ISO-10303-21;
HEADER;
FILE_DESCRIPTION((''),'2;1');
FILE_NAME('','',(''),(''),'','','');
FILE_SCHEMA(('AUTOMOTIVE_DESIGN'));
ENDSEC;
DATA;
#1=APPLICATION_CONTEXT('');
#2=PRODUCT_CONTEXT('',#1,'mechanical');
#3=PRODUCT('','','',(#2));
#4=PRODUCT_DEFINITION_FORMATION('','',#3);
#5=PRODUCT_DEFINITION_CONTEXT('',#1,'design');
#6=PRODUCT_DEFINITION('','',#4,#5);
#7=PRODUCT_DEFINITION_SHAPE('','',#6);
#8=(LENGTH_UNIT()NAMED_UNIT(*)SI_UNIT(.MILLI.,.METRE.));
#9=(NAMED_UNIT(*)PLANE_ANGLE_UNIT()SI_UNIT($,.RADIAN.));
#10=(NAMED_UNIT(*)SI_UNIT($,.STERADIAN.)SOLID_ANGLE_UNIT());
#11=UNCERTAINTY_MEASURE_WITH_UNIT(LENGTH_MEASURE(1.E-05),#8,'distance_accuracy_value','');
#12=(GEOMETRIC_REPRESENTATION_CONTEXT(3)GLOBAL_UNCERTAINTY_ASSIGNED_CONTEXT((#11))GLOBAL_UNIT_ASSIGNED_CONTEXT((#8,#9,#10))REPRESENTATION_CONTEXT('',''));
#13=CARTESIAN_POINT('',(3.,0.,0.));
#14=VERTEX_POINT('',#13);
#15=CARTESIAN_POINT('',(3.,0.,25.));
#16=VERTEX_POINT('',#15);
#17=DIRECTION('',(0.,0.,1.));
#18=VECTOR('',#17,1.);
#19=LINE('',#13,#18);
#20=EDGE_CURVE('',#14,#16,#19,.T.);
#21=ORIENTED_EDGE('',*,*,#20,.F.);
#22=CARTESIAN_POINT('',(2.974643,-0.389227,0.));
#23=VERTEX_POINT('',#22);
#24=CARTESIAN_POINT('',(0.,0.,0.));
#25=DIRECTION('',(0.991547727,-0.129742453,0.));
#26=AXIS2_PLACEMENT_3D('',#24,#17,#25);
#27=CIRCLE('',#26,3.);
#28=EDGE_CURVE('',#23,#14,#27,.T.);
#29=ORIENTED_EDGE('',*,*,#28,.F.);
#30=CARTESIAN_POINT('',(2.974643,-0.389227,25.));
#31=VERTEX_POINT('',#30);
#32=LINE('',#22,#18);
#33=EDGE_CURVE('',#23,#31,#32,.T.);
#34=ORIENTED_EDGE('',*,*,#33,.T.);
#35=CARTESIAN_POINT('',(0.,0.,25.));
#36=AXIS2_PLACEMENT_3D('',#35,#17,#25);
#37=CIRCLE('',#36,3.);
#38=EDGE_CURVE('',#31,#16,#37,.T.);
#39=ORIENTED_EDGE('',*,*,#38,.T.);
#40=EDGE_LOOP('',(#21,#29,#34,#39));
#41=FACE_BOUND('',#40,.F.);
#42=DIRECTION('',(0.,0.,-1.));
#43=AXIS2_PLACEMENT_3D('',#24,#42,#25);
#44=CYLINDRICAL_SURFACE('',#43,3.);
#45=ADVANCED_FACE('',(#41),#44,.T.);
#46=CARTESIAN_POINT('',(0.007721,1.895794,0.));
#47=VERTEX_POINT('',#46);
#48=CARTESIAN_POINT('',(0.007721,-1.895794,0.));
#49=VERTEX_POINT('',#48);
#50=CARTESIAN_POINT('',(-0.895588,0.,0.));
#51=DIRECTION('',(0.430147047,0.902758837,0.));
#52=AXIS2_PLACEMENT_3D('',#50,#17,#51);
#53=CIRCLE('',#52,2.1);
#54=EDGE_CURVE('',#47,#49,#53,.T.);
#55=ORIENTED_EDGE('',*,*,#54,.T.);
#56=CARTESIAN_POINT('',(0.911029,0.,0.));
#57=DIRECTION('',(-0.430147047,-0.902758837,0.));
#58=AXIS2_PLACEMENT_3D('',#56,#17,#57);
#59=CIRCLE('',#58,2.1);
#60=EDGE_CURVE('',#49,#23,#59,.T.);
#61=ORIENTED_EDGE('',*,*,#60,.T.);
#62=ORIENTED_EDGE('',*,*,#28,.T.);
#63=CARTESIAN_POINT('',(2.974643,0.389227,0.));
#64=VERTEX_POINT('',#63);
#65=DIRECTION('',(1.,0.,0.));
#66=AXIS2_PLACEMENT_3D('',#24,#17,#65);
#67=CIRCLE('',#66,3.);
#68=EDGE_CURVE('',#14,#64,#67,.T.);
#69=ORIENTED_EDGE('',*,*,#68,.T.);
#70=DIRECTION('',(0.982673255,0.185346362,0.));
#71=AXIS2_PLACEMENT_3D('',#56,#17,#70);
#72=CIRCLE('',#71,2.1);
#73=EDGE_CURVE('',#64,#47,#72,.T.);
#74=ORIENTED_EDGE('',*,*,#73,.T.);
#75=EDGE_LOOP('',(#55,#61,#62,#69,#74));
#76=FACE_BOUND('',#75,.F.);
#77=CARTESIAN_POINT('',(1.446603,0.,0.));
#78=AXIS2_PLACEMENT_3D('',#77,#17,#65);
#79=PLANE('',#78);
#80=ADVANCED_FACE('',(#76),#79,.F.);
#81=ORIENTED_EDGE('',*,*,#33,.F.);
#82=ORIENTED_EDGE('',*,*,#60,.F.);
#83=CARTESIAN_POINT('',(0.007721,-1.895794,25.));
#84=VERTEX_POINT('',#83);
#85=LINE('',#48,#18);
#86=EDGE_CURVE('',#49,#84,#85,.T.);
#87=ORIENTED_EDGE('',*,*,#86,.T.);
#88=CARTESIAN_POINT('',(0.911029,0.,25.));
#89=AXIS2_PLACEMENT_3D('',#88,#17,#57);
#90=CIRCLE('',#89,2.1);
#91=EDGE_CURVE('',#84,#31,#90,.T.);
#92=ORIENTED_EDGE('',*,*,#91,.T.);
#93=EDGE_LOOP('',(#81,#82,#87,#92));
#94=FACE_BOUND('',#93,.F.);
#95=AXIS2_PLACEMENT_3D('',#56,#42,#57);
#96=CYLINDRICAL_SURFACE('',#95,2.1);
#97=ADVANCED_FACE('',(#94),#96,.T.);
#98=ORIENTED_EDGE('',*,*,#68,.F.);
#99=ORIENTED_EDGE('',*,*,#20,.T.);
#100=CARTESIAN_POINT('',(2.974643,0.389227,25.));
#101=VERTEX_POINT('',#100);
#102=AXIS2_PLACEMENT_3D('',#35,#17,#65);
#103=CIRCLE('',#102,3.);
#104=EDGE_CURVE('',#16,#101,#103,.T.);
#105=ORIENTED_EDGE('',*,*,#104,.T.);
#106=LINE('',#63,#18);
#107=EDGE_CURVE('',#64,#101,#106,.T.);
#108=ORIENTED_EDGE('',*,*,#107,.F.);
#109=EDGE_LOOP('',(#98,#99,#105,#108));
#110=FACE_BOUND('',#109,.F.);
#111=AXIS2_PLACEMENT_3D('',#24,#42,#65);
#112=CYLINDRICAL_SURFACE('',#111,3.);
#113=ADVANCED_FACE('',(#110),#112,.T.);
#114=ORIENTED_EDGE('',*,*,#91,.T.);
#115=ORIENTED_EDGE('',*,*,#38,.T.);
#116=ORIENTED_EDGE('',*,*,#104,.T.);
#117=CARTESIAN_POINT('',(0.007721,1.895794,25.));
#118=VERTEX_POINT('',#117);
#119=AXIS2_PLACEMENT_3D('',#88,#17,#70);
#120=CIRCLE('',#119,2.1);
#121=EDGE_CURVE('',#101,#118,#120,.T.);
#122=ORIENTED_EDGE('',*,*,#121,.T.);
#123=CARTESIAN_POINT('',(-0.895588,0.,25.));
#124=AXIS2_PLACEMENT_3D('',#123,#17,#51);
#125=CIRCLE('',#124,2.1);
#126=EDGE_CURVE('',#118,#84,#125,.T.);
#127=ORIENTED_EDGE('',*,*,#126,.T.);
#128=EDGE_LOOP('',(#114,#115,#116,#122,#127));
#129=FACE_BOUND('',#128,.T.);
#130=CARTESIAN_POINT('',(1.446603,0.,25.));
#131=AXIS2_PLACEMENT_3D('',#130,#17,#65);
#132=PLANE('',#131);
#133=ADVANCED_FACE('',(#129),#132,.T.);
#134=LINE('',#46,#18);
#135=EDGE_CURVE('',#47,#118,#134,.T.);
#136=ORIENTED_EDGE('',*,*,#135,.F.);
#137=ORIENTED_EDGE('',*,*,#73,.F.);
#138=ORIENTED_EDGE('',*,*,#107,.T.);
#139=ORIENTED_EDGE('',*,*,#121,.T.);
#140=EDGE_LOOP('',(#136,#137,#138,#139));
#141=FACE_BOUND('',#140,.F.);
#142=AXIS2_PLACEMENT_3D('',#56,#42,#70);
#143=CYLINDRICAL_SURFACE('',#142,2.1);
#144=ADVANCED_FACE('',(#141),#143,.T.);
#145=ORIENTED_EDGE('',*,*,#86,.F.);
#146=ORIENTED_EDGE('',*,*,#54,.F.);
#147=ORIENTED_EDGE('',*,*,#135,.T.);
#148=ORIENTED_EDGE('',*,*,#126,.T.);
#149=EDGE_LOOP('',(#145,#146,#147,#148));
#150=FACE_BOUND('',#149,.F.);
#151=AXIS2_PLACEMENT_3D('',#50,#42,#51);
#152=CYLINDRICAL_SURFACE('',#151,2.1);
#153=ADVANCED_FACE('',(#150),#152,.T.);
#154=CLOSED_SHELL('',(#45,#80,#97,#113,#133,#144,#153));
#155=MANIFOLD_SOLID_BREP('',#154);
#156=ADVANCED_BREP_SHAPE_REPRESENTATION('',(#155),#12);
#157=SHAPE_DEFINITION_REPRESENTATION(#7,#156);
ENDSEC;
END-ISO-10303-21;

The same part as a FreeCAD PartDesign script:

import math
import FreeCAD as App
import Part
import Sketcher

V = App.Vector
Q = App.Units.Quantity

doc = App.newDocument("Part")
body = doc.addObject("PartDesign::Body", "Body")

sketch1 = doc.addObject("Sketcher::SketchObject", "Sketch")
body.addObject(sketch1)
sketch1.AttachmentSupport = (doc.XY_Plane, [""])
sketch1.MapMode = "FlatFace"
sketch1.addGeometry(Part.ArcOfCircle(Part.Circle(V(0, 0, 0), V(0, 0, 1), 3), math.radians(-7.45), math.radians(0)), False)
sketch1.addGeometry(Part.ArcOfCircle(Part.Circle(V(0, 0, 0), V(0, 0, 1), 3), math.radians(0), math.radians(7.45)), False)
sketch1.addGeometry(Part.ArcOfCircle(Part.Circle(V(0.91, 0, 0), V(0, 0, 1), 2.1), math.radians(11), math.radians(115)), False)
sketch1.addGeometry(Part.ArcOfCircle(Part.Circle(V(-0.9, 0, 0), V(0, 0, 1), 2.1), math.radians(65), math.radians(295)), False)
sketch1.addGeometry(Part.ArcOfCircle(Part.Circle(V(0.91, 0, 0), V(0, 0, 1), 2.1), math.radians(-115), math.radians(-11)), False)
sketch1.addConstraint(Sketcher.Constraint("Tangent", 0, 2, 1, 1))
sketch1.addConstraint(Sketcher.Constraint("Coincident", 1, 2, 2, 1))
sketch1.addConstraint(Sketcher.Constraint("Coincident", 2, 2, 3, 1))
sketch1.addConstraint(Sketcher.Constraint("Coincident", 3, 2, 4, 1))
sketch1.addConstraint(Sketcher.Constraint("Coincident", 4, 2, 0, 1))
sketch1.addConstraint(Sketcher.Constraint("Coincident", 0, 3, -1, 1))
sketch1.addConstraint(Sketcher.Constraint("Coincident", 4, 3, 2, 3))
sketch1.addConstraint(Sketcher.Constraint("Equal", 0, 1))
sketch1.addConstraint(Sketcher.Constraint("Equal", 2, 3))
sketch1.addConstraint(Sketcher.Constraint("Equal", 3, 4))
sketch1.addConstraint(Sketcher.Constraint("Symmetric", 2, 2, 3, 2, -1))
sketch1.addConstraint(Sketcher.Constraint("PointOnObject", 0, 2, -1))
sketch1.addConstraint(Sketcher.Constraint("Radius", 0, Q("3 mm")))
sketch1.addConstraint(Sketcher.Constraint("Radius", 2, Q("2.1 mm")))
sketch1.addConstraint(Sketcher.Constraint("DistanceX", -1, 1, 2, 3, Q("0.911029 mm")))
sketch1.addConstraint(Sketcher.Constraint("DistanceX", 3, 3, -1, 1, Q("0.895588 mm")))
pad1 = doc.addObject("PartDesign::Pad", "Pad")
body.addObject(pad1)
pad1.Profile = sketch1
pad1.Length = 25

doc.recompute()
